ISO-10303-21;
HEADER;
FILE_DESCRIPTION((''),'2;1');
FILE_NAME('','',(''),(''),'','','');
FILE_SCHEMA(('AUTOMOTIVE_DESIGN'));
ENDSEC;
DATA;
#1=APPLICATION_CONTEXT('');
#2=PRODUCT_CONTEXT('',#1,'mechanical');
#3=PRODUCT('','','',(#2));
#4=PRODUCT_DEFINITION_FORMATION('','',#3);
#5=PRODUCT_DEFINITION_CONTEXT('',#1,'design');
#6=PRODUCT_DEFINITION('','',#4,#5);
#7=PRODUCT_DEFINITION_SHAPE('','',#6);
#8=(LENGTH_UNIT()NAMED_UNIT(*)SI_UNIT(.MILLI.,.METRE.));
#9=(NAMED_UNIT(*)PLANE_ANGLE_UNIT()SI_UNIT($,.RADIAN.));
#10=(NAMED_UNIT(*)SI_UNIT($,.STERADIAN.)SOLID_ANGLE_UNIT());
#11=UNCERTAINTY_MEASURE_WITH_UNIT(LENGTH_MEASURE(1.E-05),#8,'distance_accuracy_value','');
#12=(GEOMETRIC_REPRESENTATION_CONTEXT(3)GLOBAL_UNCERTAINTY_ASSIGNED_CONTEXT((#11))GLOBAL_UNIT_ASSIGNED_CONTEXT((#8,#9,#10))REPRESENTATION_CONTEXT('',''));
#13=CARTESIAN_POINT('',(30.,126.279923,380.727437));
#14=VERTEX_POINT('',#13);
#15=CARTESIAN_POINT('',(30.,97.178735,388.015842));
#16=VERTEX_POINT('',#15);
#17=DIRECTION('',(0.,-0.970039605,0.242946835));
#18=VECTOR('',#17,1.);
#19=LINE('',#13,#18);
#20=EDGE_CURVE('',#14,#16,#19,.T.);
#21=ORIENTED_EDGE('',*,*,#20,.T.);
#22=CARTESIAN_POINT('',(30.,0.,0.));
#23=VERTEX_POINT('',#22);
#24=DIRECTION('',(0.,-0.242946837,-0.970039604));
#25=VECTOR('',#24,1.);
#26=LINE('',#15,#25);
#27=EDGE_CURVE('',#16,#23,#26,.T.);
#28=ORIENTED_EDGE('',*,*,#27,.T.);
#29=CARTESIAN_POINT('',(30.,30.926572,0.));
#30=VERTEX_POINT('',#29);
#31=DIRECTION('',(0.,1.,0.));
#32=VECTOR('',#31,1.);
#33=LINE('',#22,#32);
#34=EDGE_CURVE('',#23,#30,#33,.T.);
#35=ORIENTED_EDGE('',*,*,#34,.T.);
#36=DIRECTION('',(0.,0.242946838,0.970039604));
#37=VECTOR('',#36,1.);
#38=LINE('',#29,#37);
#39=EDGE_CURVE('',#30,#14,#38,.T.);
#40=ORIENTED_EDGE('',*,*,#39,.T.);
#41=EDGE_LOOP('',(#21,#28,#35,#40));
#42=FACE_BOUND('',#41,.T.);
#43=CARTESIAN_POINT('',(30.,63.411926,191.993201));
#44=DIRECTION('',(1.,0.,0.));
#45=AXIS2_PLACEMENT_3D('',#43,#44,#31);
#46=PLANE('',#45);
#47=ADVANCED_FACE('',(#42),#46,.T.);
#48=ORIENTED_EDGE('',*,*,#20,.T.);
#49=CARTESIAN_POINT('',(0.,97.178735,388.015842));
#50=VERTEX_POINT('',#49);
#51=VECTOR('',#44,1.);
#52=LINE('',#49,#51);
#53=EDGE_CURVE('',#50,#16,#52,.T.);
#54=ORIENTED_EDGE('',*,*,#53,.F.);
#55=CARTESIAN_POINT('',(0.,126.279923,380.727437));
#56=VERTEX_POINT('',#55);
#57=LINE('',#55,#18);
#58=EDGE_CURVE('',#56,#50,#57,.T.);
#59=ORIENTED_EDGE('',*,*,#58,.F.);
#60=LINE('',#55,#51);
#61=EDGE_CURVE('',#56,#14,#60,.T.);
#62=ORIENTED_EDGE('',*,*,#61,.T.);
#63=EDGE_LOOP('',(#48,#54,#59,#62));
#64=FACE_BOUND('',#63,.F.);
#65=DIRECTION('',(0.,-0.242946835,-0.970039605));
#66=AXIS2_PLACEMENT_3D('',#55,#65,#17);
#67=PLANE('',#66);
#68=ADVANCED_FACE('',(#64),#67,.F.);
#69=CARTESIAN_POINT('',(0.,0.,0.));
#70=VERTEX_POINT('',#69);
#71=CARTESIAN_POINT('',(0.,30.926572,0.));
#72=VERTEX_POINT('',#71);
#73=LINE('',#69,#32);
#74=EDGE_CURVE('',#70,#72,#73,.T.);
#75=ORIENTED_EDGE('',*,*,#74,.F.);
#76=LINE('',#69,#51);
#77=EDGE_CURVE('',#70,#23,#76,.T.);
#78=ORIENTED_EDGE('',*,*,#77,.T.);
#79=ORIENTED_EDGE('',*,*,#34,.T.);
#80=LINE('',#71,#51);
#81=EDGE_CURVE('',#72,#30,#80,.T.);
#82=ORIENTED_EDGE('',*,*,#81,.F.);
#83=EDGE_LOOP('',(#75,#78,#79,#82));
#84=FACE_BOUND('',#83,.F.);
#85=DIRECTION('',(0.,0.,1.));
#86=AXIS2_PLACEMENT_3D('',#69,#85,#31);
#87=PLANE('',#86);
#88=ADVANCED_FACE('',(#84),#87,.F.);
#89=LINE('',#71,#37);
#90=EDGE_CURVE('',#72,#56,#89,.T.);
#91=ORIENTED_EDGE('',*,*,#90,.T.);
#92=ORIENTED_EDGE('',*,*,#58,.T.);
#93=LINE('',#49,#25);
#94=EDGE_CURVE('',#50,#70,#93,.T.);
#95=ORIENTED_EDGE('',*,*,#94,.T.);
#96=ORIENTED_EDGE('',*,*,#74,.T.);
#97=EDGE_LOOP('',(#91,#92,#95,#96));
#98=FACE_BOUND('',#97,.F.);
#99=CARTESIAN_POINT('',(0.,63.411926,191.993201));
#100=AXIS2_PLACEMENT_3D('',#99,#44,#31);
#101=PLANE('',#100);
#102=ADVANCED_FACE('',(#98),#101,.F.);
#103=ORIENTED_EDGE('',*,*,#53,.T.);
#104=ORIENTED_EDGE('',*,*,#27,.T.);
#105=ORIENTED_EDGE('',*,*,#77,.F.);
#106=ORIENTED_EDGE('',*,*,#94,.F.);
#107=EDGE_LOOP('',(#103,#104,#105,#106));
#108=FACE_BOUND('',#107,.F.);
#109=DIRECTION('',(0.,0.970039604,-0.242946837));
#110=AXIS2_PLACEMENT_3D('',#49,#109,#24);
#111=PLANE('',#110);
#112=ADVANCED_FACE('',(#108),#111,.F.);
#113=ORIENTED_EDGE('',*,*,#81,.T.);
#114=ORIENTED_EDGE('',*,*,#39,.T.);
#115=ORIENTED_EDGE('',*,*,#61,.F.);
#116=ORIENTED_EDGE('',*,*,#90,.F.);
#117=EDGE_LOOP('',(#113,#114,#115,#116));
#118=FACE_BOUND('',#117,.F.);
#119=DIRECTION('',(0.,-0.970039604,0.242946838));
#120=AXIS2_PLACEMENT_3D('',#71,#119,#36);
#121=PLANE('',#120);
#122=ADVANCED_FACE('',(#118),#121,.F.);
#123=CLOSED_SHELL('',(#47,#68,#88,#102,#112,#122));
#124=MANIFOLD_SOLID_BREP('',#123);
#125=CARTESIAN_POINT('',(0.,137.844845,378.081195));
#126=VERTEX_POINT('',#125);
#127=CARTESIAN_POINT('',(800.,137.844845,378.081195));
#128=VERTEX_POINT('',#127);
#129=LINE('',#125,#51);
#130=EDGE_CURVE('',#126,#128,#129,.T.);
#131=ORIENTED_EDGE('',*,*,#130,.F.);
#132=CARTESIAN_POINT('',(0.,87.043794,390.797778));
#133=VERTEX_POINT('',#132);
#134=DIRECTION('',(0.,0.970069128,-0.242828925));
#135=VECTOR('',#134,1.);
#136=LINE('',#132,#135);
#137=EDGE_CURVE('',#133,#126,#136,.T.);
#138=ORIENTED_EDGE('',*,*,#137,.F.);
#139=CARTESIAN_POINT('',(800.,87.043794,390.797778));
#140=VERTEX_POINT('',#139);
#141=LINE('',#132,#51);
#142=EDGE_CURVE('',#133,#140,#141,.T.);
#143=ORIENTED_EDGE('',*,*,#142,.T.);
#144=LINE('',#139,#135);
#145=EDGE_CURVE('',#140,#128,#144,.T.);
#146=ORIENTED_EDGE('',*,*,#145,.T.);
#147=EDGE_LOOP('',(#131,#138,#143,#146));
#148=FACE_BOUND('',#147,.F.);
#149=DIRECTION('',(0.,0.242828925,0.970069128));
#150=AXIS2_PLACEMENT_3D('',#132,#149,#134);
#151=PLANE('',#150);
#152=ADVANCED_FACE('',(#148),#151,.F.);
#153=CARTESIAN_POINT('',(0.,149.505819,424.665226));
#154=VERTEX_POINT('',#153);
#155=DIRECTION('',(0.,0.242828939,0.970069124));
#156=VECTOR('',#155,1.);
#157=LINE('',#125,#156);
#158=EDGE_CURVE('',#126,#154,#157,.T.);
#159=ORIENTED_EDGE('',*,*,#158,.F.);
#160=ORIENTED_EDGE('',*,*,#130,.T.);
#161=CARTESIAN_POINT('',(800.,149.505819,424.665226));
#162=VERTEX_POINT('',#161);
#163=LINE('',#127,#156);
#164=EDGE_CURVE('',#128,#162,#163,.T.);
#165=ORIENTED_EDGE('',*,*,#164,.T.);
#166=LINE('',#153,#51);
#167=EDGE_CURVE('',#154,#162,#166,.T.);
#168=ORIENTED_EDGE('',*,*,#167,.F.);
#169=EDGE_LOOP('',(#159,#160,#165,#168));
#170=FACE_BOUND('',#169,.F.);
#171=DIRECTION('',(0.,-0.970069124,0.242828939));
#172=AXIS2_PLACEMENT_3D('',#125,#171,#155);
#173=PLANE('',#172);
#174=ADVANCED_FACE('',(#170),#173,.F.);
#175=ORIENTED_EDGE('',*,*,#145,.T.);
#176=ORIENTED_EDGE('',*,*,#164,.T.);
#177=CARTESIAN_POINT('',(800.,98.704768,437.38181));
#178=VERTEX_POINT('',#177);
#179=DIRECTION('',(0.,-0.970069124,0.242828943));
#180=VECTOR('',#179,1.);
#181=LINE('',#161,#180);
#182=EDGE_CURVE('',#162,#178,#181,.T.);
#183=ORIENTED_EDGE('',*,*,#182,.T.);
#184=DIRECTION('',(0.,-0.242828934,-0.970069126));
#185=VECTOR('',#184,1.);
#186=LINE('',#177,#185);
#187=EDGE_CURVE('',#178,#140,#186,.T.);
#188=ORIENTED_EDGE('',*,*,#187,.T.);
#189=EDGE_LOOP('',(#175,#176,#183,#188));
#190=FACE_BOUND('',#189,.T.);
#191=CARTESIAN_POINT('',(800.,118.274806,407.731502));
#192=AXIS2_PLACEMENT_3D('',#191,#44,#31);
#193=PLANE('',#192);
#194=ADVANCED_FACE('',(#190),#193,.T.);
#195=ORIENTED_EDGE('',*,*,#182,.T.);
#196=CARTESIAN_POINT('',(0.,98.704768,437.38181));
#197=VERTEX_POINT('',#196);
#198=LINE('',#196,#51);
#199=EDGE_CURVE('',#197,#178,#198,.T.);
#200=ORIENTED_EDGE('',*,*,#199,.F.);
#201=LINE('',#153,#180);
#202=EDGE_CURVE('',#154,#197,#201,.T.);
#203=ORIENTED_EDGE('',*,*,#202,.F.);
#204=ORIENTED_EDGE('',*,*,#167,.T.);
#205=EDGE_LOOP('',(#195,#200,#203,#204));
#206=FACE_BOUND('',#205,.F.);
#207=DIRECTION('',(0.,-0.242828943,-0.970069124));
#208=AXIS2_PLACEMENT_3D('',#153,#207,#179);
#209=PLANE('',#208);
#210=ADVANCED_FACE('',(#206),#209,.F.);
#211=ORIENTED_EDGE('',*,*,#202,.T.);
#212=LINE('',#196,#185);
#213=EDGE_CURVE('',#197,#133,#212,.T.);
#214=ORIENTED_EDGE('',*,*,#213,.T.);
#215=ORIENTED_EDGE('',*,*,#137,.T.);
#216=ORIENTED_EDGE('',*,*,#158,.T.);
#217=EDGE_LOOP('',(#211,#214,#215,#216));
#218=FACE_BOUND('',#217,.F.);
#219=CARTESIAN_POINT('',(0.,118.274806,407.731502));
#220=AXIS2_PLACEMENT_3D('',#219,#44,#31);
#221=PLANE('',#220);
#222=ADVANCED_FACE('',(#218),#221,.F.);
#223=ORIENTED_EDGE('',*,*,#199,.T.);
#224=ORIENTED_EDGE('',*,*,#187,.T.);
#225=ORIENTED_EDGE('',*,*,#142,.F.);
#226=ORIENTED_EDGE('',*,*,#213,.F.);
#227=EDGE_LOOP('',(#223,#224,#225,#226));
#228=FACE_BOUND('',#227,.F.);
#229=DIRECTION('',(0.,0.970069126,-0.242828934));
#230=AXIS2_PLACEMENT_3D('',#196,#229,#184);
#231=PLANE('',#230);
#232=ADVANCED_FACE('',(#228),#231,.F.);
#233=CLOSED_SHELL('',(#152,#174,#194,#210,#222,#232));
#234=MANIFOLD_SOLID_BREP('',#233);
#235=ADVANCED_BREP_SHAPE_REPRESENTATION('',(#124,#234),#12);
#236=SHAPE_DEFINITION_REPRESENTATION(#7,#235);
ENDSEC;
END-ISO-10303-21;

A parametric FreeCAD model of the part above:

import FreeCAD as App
import Part
import Sketcher
from FreeCAD import Vector


def add_polygon(sketch, points):
    """Adds a closed chain of lines whose ends are joined by coincident constraints."""
    first, n = sketch.GeometryCount, len(points)
    for a, b in zip(points, points[1:] + points[:1]):
        sketch.addGeometry(Part.LineSegment(App.Vector(*a, 0), App.Vector(*b, 0)), False)
    for i in range(n):
        sketch.addConstraint(Sketcher.Constraint("Coincident", first + i, 2, first + (i + 1) % n, 1))

doc = App.newDocument("Part")
params = doc.addObject("Spreadsheet::Sheet", "Params")
for row, (alias, value) in enumerate([
    ("sketch1_length", "400 mm"),
    ("sketch1_length2", "30 mm"),
    ("pad1_length", "30 mm"),
    ("pad2_length", "800 mm"),
], start=1):
    params.set(f"A{row}", alias)
    params.set(f"B{row}", "=" + value)
    params.setAlias(f"B{row}", alias)

body = doc.addObject("PartDesign::Body", "Body")

# Sketch on YZ plane
sketch1 = body.newObject("Sketcher::SketchObject", "Sketch")
sketch1.AttachmentSupport = (doc.getObject("YZ_Plane"), [""])
sketch1.MapMode = "FlatFace"
add_polygon(sketch1, [(97, 388), (0, 0), (31, 0), (126, 381)])  # lines 0-3
sketch1.addConstraint([
    Sketcher.Constraint("Horizontal", 1),
    Sketcher.Constraint("Coincident", 0, 2, -1, 1),
    Sketcher.Constraint("Parallel", 0, 2),
    Sketcher.Constraint("Perpendicular", 2, 3),
    Sketcher.Constraint("Distance", 0, 400.0),
    Sketcher.Constraint("Distance", 3, 30.0),
    Sketcher.Constraint("DistanceX", 1, 1, 1, 2, 30.926572),
])
sketch1.setExpression("Constraints[8]", "Params.sketch1_length")
sketch1.setExpression("Constraints[9]", "Params.sketch1_length2")
pad1 = body.newObject("PartDesign::Pad", "Pad")
pad1.Profile = sketch1
pad1.setExpression("Length", "Params.pad1_length")
body2 = doc.addObject("PartDesign::Body", "Body001")

# Sketch on YZ plane
sketch2 = body2.newObject("Sketcher::SketchObject", "Sketch001")
sketch2.AttachmentSupport = (doc.getObject("YZ_Plane001"), [""])
sketch2.MapMode = "FlatFace"
add_polygon(sketch2, [(99, 437), (87, 391), (138, 378), (150, 425)])  # lines 0-3
sketch2.addConstraint([
    Sketcher.Constraint("Perpendicular", 0, 1),
    Sketcher.Constraint("Perpendicular", 1, 2),
    Sketcher.Constraint("Perpendicular", 2, 3),
    Sketcher.Constraint("DistanceY", -1, 1, 0, 2, 390.797778),
    Sketcher.Constraint("DistanceX", -1, 1, 2, 2, 149.505819),
    Sketcher.Constraint("DistanceX", -1, 1, 3, 2, 98.704768),
    Sketcher.Constraint("DistanceY", -1, 1, 3, 2, 437.38181),
    Sketcher.Constraint("DistanceY", 0, 2, 2, 2, 33.867448),
])
pad2 = body2.newObject("PartDesign::Pad", "Pad001")
pad2.Profile = sketch2
pad2.setExpression("Length", "Params.pad2_length")

doc.recompute()
